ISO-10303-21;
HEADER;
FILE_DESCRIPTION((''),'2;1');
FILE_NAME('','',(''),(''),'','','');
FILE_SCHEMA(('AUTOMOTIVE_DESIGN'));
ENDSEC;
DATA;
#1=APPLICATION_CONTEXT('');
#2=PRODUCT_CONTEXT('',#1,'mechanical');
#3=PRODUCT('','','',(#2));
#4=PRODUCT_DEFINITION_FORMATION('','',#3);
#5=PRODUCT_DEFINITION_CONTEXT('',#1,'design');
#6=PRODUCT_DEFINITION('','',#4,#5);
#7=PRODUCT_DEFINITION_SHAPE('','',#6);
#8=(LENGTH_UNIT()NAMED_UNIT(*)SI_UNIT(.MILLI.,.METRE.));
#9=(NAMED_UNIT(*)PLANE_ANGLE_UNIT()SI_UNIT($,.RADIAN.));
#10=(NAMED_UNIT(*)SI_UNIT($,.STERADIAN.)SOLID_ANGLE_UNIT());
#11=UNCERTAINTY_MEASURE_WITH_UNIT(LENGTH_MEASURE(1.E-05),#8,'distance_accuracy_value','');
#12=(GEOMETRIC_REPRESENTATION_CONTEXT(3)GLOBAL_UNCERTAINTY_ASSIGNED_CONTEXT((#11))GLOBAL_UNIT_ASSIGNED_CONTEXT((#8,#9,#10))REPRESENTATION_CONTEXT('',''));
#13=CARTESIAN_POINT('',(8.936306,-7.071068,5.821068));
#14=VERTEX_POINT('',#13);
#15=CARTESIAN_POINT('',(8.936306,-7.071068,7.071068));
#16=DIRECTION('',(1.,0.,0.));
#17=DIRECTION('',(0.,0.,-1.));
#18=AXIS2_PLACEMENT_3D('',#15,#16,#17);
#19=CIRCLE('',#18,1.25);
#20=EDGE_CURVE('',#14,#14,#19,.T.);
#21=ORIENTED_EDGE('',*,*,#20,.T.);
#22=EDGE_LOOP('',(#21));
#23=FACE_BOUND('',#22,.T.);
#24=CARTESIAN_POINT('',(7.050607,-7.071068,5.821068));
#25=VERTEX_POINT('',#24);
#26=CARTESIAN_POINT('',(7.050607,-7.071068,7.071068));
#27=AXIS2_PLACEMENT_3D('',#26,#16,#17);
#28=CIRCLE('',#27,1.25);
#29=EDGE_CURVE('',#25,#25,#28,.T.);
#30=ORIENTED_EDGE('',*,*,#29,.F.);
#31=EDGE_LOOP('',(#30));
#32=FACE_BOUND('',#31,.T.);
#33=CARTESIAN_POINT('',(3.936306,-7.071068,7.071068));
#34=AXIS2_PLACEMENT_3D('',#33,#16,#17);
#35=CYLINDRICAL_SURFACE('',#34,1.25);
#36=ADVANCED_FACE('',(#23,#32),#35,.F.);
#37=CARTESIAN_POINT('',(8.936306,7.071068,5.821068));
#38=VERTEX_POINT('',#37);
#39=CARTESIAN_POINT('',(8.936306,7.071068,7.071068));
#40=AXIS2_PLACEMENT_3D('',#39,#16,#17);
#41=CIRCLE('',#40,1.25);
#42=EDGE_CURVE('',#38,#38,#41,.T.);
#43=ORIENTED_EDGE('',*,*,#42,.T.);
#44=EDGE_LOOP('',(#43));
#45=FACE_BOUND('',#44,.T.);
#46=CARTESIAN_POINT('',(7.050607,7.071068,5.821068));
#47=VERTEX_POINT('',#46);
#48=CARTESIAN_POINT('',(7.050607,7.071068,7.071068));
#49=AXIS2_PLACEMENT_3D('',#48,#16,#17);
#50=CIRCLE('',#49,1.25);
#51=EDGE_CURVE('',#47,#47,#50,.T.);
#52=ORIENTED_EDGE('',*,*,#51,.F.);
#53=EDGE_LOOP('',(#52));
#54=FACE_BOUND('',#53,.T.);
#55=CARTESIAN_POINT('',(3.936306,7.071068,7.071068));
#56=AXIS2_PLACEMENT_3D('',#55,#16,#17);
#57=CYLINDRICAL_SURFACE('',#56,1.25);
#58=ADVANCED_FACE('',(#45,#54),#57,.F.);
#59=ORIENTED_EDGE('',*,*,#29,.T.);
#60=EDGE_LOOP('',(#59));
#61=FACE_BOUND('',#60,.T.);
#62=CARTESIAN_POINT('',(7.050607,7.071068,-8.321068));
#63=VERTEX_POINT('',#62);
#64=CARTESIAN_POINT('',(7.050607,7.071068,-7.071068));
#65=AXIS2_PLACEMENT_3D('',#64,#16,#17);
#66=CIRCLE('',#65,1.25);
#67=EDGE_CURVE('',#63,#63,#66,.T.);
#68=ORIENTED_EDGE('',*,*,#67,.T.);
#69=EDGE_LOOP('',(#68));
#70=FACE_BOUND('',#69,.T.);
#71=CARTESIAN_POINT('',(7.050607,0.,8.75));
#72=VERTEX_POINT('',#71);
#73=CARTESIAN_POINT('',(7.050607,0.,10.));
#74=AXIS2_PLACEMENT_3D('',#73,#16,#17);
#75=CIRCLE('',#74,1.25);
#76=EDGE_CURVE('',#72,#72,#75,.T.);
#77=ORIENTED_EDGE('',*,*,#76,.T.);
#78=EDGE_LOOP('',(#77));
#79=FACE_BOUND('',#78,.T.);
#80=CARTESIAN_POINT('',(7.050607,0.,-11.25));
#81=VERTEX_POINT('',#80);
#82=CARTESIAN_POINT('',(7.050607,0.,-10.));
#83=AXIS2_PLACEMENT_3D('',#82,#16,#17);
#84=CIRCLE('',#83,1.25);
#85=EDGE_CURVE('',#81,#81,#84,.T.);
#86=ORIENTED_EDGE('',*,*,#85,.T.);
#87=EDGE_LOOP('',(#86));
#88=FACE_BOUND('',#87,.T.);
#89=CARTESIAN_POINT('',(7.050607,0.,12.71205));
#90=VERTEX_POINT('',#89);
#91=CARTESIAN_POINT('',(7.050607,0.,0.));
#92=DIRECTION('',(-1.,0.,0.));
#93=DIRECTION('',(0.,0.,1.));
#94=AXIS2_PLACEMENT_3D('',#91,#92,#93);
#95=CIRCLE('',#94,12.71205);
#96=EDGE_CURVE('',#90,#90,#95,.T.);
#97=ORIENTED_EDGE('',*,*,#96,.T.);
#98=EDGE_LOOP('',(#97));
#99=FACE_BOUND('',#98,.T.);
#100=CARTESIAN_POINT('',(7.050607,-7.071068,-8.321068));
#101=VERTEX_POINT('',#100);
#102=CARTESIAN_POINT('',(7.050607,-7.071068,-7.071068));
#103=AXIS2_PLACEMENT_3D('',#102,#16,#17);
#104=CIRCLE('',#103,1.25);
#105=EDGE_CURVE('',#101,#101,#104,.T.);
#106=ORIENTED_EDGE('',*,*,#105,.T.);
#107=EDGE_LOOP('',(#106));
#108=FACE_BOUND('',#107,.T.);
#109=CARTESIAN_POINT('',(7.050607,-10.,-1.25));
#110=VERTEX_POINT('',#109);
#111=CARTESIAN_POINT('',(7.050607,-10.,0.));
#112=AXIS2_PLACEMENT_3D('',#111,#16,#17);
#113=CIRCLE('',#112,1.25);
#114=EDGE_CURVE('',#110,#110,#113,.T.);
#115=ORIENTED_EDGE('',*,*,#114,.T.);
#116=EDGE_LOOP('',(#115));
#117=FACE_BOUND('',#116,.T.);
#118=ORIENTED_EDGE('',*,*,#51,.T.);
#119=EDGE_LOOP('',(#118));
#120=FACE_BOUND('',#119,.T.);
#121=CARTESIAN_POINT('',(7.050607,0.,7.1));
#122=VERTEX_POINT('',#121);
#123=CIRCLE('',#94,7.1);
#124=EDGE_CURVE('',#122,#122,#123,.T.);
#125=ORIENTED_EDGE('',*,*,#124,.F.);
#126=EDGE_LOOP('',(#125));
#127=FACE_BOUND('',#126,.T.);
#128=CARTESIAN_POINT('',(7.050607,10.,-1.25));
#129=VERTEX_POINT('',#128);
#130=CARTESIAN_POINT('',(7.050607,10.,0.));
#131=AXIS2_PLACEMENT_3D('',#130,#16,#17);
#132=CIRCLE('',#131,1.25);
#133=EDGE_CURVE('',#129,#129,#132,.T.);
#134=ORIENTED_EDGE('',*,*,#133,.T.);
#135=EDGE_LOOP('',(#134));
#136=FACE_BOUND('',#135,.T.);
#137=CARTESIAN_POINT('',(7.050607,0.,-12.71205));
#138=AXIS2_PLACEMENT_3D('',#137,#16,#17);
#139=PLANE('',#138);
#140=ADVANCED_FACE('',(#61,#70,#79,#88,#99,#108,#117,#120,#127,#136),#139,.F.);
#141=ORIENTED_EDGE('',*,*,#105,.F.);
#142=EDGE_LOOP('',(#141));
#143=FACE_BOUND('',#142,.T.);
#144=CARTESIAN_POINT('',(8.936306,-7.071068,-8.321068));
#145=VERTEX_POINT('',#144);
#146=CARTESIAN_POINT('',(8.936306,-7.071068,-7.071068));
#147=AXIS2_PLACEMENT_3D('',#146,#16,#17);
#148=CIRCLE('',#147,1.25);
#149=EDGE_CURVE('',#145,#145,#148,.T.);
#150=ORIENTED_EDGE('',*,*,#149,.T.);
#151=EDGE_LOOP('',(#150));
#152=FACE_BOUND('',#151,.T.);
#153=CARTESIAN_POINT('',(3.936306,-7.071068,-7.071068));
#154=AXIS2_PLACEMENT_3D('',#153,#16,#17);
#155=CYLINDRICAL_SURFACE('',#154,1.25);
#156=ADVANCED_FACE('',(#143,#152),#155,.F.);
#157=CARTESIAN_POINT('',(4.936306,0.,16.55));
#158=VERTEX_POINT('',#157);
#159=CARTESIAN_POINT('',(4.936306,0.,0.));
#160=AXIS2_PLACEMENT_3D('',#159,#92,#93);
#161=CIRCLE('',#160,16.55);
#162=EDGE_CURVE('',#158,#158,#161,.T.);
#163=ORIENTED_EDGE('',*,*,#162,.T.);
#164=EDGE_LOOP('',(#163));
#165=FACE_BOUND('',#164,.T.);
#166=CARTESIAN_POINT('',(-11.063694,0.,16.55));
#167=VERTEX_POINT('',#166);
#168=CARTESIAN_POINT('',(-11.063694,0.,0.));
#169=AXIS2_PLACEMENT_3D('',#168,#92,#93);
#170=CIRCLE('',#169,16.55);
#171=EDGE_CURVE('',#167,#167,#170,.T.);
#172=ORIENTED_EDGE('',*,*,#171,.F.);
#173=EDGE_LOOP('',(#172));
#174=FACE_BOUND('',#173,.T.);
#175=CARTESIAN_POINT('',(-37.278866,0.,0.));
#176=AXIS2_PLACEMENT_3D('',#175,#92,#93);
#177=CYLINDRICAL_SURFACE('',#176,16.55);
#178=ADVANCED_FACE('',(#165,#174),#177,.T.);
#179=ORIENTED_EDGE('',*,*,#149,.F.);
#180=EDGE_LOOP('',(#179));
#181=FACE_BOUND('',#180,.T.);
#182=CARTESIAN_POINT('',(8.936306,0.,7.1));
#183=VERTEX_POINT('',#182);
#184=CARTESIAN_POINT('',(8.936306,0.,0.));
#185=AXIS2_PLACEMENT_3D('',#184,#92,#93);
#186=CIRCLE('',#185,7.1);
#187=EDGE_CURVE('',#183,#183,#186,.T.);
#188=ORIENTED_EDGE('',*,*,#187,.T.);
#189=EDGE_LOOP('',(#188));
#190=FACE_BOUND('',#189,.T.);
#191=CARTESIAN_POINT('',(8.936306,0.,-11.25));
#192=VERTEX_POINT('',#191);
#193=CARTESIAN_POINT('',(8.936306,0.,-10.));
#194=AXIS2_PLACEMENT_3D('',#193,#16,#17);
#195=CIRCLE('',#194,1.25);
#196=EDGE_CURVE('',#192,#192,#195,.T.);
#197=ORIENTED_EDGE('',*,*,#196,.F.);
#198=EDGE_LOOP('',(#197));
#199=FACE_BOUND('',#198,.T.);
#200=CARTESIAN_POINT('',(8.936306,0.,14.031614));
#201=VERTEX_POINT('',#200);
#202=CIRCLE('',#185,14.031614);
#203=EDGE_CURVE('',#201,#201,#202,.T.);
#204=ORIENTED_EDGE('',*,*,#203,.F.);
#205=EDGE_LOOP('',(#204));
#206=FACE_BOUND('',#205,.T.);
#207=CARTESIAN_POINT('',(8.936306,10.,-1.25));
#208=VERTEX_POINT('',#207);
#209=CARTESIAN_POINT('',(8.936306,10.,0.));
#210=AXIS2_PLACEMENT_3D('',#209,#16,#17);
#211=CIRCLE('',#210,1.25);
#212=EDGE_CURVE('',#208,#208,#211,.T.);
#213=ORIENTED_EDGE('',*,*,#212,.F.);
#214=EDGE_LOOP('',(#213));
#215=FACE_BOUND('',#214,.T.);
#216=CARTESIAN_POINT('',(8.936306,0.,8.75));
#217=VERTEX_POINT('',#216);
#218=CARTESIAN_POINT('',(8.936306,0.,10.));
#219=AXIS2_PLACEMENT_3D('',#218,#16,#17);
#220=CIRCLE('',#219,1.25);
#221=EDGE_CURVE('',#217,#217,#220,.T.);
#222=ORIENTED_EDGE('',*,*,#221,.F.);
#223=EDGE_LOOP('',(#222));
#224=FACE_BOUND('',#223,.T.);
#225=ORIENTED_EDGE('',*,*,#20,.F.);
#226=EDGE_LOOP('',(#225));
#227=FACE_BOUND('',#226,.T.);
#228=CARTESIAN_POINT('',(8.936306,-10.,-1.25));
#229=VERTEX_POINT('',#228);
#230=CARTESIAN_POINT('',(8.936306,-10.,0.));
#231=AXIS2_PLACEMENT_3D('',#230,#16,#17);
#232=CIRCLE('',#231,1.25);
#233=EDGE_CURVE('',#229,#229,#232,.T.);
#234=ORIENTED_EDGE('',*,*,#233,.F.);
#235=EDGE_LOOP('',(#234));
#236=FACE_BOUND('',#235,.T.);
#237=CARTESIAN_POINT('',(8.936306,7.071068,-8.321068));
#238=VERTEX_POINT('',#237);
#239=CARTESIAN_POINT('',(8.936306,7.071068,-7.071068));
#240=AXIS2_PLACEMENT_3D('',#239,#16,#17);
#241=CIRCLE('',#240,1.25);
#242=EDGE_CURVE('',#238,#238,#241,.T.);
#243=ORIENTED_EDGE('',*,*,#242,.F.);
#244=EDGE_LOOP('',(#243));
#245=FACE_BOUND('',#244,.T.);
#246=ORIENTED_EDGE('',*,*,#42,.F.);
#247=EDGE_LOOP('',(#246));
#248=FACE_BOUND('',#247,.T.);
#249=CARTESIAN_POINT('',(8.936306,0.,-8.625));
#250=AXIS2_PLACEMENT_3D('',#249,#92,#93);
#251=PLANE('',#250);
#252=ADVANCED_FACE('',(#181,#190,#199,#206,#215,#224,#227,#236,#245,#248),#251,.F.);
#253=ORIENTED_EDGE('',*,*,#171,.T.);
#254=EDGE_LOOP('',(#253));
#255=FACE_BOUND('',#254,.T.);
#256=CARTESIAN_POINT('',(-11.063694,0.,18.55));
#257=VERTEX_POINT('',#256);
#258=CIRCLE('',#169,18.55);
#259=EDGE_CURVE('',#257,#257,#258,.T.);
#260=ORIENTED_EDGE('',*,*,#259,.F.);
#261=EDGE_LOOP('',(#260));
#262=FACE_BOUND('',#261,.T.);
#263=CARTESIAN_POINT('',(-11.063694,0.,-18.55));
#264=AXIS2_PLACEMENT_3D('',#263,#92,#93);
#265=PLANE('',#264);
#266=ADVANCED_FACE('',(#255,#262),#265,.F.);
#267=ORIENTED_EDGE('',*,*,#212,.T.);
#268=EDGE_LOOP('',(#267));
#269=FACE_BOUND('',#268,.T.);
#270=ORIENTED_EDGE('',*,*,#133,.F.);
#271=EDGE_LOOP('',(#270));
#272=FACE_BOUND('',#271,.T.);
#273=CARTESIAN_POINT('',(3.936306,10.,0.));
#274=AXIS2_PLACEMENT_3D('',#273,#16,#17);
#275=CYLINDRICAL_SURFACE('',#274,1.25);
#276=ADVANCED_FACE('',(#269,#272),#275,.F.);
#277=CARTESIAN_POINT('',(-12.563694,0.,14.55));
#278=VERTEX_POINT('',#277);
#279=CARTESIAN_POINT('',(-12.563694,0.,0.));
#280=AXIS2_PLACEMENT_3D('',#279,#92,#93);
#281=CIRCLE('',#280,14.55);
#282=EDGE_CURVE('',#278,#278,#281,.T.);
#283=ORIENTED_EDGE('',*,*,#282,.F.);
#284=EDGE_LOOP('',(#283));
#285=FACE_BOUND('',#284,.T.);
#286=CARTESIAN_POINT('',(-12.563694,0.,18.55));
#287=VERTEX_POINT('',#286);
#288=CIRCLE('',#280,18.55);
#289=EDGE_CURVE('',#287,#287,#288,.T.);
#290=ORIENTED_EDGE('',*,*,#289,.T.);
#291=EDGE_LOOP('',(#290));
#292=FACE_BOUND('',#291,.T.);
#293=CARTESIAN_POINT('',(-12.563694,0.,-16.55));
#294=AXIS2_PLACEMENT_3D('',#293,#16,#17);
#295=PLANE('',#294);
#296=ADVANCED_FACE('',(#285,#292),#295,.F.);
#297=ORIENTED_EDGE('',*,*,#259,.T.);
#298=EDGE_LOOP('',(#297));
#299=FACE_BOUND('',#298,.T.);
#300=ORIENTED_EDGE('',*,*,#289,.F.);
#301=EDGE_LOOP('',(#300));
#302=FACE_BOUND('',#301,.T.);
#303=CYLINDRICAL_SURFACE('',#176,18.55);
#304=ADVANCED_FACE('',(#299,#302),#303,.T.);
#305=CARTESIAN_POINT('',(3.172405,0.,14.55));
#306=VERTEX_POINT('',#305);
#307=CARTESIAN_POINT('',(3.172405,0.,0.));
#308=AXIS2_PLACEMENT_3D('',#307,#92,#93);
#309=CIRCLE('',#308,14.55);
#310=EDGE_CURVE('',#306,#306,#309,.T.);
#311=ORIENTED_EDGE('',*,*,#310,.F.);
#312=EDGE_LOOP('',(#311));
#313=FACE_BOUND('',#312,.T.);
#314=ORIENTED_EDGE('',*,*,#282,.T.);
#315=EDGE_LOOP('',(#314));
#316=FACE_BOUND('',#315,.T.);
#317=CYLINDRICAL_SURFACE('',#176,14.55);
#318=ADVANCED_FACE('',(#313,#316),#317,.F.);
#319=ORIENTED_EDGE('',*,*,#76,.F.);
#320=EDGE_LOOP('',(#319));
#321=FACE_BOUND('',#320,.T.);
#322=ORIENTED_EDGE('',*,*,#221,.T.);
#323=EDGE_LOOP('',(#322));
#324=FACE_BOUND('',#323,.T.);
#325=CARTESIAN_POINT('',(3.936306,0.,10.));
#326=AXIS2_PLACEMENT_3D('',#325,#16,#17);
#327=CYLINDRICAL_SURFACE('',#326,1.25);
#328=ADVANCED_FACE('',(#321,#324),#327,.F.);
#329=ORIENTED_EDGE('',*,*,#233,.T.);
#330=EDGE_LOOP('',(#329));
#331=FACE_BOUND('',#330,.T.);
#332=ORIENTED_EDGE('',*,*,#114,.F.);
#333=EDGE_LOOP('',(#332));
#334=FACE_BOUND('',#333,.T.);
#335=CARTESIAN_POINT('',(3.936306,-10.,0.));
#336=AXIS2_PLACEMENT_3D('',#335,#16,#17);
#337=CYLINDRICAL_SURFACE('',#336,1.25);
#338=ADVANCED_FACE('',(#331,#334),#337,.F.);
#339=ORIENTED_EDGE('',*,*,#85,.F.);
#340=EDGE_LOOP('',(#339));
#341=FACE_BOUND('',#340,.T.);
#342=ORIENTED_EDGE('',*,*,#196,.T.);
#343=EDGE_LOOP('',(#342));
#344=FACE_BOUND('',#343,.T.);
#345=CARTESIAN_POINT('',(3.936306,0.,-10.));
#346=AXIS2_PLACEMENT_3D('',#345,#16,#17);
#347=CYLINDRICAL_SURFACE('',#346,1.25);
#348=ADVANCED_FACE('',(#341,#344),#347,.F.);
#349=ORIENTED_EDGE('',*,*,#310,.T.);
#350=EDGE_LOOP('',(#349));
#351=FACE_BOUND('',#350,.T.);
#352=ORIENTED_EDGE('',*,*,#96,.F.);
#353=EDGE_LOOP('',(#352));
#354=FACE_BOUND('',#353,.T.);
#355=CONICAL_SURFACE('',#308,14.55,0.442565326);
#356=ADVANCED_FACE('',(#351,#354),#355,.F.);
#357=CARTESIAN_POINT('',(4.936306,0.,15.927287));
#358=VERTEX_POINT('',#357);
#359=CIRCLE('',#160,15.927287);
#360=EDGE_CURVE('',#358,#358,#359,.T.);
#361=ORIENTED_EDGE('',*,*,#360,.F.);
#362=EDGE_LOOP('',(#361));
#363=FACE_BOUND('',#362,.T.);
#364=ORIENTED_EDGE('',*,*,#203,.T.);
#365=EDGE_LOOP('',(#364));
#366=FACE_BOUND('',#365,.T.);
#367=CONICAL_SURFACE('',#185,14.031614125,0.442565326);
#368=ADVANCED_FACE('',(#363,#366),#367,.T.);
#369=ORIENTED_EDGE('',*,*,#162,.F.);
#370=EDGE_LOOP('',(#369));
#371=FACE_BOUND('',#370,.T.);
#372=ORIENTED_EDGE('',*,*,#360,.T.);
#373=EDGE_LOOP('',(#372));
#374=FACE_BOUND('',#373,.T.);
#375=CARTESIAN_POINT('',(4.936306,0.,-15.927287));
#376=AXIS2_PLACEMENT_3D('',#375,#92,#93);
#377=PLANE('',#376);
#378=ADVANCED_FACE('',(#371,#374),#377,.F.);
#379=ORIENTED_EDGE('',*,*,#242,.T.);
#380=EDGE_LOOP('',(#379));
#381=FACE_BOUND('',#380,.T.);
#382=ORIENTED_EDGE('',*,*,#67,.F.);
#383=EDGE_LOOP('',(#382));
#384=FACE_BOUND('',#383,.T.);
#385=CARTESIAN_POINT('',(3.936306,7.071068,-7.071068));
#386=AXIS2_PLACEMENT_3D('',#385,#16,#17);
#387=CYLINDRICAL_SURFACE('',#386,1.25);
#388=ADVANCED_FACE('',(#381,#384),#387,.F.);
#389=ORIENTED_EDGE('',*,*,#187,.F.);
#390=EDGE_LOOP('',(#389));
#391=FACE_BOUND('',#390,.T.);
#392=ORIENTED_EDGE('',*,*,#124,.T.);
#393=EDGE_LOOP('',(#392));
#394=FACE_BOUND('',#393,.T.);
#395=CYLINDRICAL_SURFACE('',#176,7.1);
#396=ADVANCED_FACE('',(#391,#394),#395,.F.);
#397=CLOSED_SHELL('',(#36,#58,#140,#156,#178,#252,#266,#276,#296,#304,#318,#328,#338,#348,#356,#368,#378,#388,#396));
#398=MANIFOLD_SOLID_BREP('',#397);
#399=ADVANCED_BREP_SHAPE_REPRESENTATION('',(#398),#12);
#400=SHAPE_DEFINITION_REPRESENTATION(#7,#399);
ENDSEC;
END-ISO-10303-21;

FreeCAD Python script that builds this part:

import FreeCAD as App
import Part
import Sketcher
from FreeCAD import Vector

doc = App.newDocument("Part")
params = doc.addObject("Spreadsheet::Sheet", "Params")
for row, (alias, value) in enumerate([
    ("sketch1_width", "16 mm"),
    ("sketch1_height", "2 mm"),
    ("sketch1_height2", "4 mm"),
    ("sketch1_width2", "1.5 mm"),
    ("revolution_angle", "360 deg"),
    ("sketch2_diameter", "2.5 mm"),
    ("pocket1_length", "5 mm"),
], start=1):
    params.set(f"A{row}", alias)
    params.set(f"B{row}", "=" + value)
    params.setAlias(f"B{row}", alias)

body = doc.addObject("PartDesign::Body", "Body")

# Sketch on XZ plane
sketch1 = doc.addObject("Sketcher::SketchObject", "Sketch")
body.addObject(sketch1)
sketch1.AttachmentSupport = (doc.XZ_Plane, [""])
sketch1.MapMode = "FlatFace"
sketch1.addGeometry([
    Part.LineSegment(Vector(8.9, -14, 0), Vector(4.9, -15.9, 0)),  # 0
    Part.LineSegment(Vector(4.9, -15.9, 0), Vector(4.9, -16.6, 0)),  # 1
    Part.LineSegment(Vector(4.9, -16.6, 0), Vector(-11.1, -16.6, 0)),  # 2
    Part.LineSegment(Vector(-11.1, -16.6, 0), Vector(-11.1, -18.6, 0)),  # 3
    Part.LineSegment(Vector(-11.1, -18.6, 0), Vector(-12.6, -18.6, 0)),  # 4
    Part.LineSegment(Vector(-12.6, -18.6, 0), Vector(-12.6, -14.6, 0)),  # 5
    Part.LineSegment(Vector(-12.6, -14.6, 0), Vector(3.2, -14.6, 0)),  # 6
    Part.LineSegment(Vector(3.2, -14.6, 0), Vector(7.1, -12.7, 0)),  # 7
    Part.LineSegment(Vector(7.1, -12.7, 0), Vector(7.1, -7.1, 0)),  # 8
    Part.LineSegment(Vector(7.1, -7.1, 0), Vector(8.9, -7.1, 0)),  # 9
    Part.LineSegment(Vector(8.9, -7.1, 0), Vector(8.9, -14, 0)),  # 10
], False)
sketch1.addConstraint([
    Sketcher.Constraint("Coincident", 0, 2, 1, 1),
    Sketcher.Constraint("Coincident", 1, 2, 2, 1),
    Sketcher.Constraint("Coincident", 2, 2, 3, 1),
    Sketcher.Constraint("Coincident", 3, 2, 4, 1),
    Sketcher.Constraint("Coincident", 4, 2, 5, 1),
    Sketcher.Constraint("Coincident", 5, 2, 6, 1),
    Sketcher.Constraint("Coincident", 6, 2, 7, 1),
    Sketcher.Constraint("Coincident", 7, 2, 8, 1),
    Sketcher.Constraint("Coincident", 8, 2, 9, 1),
    Sketcher.Constraint("Coincident", 9, 2, 10, 1),
    Sketcher.Constraint("Coincident", 10, 2, 0, 1),
    Sketcher.Constraint("Vertical", 1),
    Sketcher.Constraint("Horizontal", 2),
    Sketcher.Constraint("Vertical", 3),
    Sketcher.Constraint("Horizontal", 4),
    Sketcher.Constraint("Vertical", 5),
    Sketcher.Constraint("Horizontal", 6),
    Sketcher.Constraint("Vertical", 8),
    Sketcher.Constraint("Horizontal", 9),
    Sketcher.Constraint("Vertical", 10),
    Sketcher.Constraint("Parallel", 0, 7),
    Sketcher.Constraint("DistanceX", 2, 2, 2, 1, 16.0),
    Sketcher.Constraint("DistanceY", 3, 2, 3, 1, 2.0),
    Sketcher.Constraint("DistanceY", 5, 1, 5, 2, 4.0),
    Sketcher.Constraint("DistanceX", 4, 2, 4, 1, 1.5),
    Sketcher.Constraint("DistanceX", 0, 2, 9, 2, 4.0),
    Sketcher.Constraint("DistanceY", 8, 2, -1, 1, 7.1),
    Sketcher.Constraint("DistanceY", 1, 2, -1, 1, 16.55),
    Sketcher.Constraint("DistanceX", 6, 1, 6, 2, 15.7361),
    Sketcher.Constraint("DistanceX", 9, 1, 9, 2, 1.885699),
    Sketcher.Constraint("DistanceY", 8, 1, 8, 2, 5.61205),
    Sketcher.Constraint("DistanceY", 1, 2, 1, 1, 0.622713),
    Sketcher.Constraint("DistanceX", -1, 1, 0, 2, 4.936306),
])
sketch1.setExpression("Constraints[21]", "Params.sketch1_width")
sketch1.setExpression("Constraints[22]", "Params.sketch1_height")
sketch1.setExpression("Constraints[23]", "Params.sketch1_height2")
sketch1.setExpression("Constraints[24]", "Params.sketch1_width2")
revolution = doc.addObject("PartDesign::Revolution", "Revolution")
body.addObject(revolution)
revolution.Profile = sketch1
revolution.ReferenceAxis = (sketch1, ["H_Axis"])
revolution.setExpression("Angle", "Params.revolution_angle")

# Sketch on YZ plane
sketch2 = doc.addObject("Sketcher::SketchObject", "Sketch001")
body.addObject(sketch2)
sketch2.AttachmentSupport = (doc.YZ_Plane, [""])
sketch2.MapMode = "FlatFace"
sketch2.AttachmentOffset = App.Placement(Vector(0, 0, 8.936306), App.Rotation())
sketch2.addGeometry([
    Part.Circle(Vector(10, 0, 0), Vector(0, 0, 1), 1.2),  # 0
    Part.Circle(Vector(7.1, -7.1, 0), Vector(0, 0, 1), 1.2),  # 1
    Part.Circle(Vector(0, -10, 0), Vector(0, 0, 1), 1.2),  # 2
    Part.Circle(Vector(-7.1, -7.1, 0), Vector(0, 0, 1), 1.2),  # 3
    Part.Circle(Vector(-10, 0, 0), Vector(0, 0, 1), 1.2),  # 4
    Part.Circle(Vector(-7.1, 7.1, 0), Vector(0, 0, 1), 1.2),  # 5
    Part.Circle(Vector(0, 10, 0), Vector(0, 0, 1), 1.2),  # 6
    Part.Circle(Vector(7.1, 7.1, 0), Vector(0, 0, 1), 1.2),  # 7
], False)
sketch2.addConstraint([
    Sketcher.Constraint("Equal", 0, 1),
    Sketcher.Constraint("Equal", 1, 2),
    Sketcher.Constraint("Equal", 2, 3),
    Sketcher.Constraint("Equal", 3, 4),
    Sketcher.Constraint("Equal", 4, 5),
    Sketcher.Constraint("Equal", 5, 6),
    Sketcher.Constraint("Equal", 6, 7),
    Sketcher.Constraint("Symmetric", 0, 3, 4, 3, -1, 1),
    Sketcher.Constraint("Symmetric", 1, 3, 5, 3, -1, 1),
    Sketcher.Constraint("Symmetric", 2, 3, 6, 3, -1, 1),
    Sketcher.Constraint("Symmetric", 3, 3, 7, 3, -1, 1),
    Sketcher.Constraint("Symmetric", 1, 3, 3, 3, -2),
    Sketcher.Constraint("PointOnObject", 0, 3, -1),
    Sketcher.Constraint("PointOnObject", 2, 3, -2),
    Sketcher.Constraint("Diameter", 0, 2.5),
    Sketcher.Constraint("DistanceX", -1, 1, 0, 3, 10.0),
    Sketcher.Constraint("DistanceY", 2, 3, -1, 1, 10.0),
    Sketcher.Constraint("DistanceX", -1, 1, 1, 3, 7.071068),
    Sketcher.Constraint("DistanceY", 1, 3, -1, 1, 7.071068),
])
sketch2.setExpression("Constraints[14]", "Params.sketch2_diameter")
pocket1 = doc.addObject("PartDesign::Pocket", "Pocket")
body.addObject(pocket1)
pocket1.Profile = sketch2
pocket1.setExpression("Length", "Params.pocket1_length")

doc.recompute()
